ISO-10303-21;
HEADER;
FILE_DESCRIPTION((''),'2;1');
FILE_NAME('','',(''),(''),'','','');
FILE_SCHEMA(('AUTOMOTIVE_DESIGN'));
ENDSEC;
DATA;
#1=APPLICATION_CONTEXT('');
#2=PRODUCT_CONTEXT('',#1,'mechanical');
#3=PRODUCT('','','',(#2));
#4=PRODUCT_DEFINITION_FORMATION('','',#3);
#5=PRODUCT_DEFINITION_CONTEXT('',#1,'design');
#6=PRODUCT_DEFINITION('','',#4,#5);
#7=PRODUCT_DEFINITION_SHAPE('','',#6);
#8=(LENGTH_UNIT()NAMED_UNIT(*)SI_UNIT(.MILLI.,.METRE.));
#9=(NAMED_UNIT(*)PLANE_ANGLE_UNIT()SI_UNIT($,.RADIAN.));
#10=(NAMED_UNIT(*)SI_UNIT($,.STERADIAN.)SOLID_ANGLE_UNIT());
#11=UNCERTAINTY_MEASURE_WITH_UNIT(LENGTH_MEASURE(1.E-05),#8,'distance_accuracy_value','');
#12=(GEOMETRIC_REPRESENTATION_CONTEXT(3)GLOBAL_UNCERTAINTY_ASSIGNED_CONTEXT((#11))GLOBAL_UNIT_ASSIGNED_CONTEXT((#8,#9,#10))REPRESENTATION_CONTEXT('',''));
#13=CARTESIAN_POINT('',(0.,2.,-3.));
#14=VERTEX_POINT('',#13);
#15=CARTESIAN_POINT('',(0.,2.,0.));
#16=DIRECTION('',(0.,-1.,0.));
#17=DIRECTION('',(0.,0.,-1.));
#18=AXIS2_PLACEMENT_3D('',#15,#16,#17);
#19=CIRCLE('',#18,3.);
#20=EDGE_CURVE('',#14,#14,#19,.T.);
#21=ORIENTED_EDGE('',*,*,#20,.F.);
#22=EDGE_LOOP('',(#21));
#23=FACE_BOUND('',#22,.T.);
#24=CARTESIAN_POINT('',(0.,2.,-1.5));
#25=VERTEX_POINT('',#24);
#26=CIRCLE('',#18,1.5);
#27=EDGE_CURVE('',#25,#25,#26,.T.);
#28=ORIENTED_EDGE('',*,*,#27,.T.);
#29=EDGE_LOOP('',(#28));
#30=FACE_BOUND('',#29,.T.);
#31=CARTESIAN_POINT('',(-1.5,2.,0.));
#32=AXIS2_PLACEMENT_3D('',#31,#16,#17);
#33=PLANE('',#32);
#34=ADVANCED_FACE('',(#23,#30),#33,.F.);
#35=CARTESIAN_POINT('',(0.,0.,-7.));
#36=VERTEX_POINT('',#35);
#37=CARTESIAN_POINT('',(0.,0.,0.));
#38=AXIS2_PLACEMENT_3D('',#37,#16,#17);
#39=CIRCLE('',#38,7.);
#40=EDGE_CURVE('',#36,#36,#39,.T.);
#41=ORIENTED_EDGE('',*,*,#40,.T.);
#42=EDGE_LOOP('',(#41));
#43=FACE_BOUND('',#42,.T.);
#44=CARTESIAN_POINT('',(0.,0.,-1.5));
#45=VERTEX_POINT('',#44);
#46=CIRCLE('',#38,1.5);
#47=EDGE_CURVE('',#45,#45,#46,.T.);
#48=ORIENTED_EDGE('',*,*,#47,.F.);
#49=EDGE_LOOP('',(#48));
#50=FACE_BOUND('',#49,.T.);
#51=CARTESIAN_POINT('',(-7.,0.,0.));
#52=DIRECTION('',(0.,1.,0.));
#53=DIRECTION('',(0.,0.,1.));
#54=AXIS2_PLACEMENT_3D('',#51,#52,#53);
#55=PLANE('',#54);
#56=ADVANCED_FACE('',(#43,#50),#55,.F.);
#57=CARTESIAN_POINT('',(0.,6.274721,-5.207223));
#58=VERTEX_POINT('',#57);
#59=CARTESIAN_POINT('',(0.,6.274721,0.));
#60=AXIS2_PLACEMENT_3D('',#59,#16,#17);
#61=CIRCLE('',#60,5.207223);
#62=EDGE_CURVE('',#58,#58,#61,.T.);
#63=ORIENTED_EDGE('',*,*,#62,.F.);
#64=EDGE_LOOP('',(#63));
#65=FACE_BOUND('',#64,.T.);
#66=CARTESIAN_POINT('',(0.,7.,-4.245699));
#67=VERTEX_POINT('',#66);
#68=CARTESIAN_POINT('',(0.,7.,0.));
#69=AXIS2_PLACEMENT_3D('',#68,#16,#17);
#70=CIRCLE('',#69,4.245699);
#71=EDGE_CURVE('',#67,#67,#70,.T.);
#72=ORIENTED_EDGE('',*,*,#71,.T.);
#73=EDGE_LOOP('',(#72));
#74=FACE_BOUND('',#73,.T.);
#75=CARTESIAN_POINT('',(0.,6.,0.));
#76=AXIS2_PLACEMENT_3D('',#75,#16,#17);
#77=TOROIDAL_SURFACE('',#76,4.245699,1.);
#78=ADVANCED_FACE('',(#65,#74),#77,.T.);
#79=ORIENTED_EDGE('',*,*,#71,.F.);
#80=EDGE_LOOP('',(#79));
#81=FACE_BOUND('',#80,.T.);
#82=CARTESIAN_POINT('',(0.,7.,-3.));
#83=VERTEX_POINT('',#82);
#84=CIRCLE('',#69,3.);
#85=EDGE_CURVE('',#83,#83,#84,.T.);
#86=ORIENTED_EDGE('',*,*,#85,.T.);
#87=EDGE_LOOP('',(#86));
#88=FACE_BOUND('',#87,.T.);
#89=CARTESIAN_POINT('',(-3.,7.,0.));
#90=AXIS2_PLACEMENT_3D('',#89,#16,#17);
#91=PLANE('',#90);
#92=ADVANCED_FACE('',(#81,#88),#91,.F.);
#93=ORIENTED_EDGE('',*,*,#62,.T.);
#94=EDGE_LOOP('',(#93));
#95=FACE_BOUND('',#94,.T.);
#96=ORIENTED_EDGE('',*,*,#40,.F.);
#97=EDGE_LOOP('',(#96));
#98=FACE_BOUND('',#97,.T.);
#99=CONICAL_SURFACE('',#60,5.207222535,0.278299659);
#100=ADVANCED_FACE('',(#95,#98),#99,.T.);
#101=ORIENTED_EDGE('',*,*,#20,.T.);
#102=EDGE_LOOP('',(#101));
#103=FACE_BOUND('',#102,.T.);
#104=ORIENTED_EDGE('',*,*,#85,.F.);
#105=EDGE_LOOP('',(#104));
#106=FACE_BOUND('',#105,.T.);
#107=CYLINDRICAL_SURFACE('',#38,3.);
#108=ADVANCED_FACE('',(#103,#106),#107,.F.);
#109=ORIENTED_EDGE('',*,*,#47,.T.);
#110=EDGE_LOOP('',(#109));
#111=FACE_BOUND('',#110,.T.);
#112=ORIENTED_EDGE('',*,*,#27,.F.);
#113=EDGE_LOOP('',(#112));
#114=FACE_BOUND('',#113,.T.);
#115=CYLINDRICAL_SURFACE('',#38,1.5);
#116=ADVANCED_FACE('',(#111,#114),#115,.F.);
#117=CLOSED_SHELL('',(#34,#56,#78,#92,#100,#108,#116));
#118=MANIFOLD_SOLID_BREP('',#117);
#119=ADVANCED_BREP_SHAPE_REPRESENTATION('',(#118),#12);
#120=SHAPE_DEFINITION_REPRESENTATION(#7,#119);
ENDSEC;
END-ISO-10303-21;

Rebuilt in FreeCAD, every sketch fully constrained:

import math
import FreeCAD as App
import Part
import Sketcher
Q = App.Units.Quantity

doc = App.newDocument("Part")
body = doc.addObject("PartDesign::Body", "Body")

# Sketch on XY plane
sketch1 = body.newObject("Sketcher::SketchObject", "Sketch")
sketch1.AttachmentSupport = (doc.getObject("XY_Plane"), [""])
sketch1.MapMode = "FlatFace"
sketch1.addGeometry(Part.LineSegment(App.Vector(-7, 0, 0), App.Vector(-1.5, 0, 0)), False)
sketch1.addGeometry(Part.LineSegment(App.Vector(-1.5, 0, 0), App.Vector(-1.5, 2, 0)), False)
sketch1.addGeometry(Part.LineSegment(App.Vector(-1.5, 2, 0), App.Vector(-3, 2, 0)), False)
sketch1.addGeometry(Part.LineSegment(App.Vector(-3, 2, 0), App.Vector(-3, 7, 0)), False)
sketch1.addGeometry(Part.LineSegment(App.Vector(-3, 7, 0), App.Vector(-4.2, 7, 0)), False)
sketch1.addGeometry(Part.ArcOfCircle(Part.Circle(App.Vector(-4.2, 6, 0), App.Vector(0, 0, 1), 1), math.radians(90), math.radians(164)), False)
sketch1.addGeometry(Part.LineSegment(App.Vector(-5.2, 6.3, 0), App.Vector(-7, 0, 0)), False)
sketch1.addConstraint(Sketcher.Constraint("Coincident", 0, 2, 1, 1))
sketch1.addConstraint(Sketcher.Constraint("Coincident", 1, 2, 2, 1))
sketch1.addConstraint(Sketcher.Constraint("Coincident", 2, 2, 3, 1))
sketch1.addConstraint(Sketcher.Constraint("Coincident", 3, 2, 4, 1))
sketch1.addConstraint(Sketcher.Constraint("Tangent", 4, 2, 5, 1))
sketch1.addConstraint(Sketcher.Constraint("Tangent", 5, 2, 6, 1))
sketch1.addConstraint(Sketcher.Constraint("Coincident", 6, 2, 0, 1))
sketch1.addConstraint(Sketcher.Constraint("Horizontal", 0))
sketch1.addConstraint(Sketcher.Constraint("Vertical", 1))
sketch1.addConstraint(Sketcher.Constraint("Horizontal", 2))
sketch1.addConstraint(Sketcher.Constraint("Vertical", 3))
sketch1.addConstraint(Sketcher.Constraint("Horizontal", 4))
sketch1.addConstraint(Sketcher.Constraint("PointOnObject", 0, 2, -1))
sketch1.addConstraint(Sketcher.Constraint("Radius", 5, Q("1 mm")))
sketch1.addConstraint(Sketcher.Constraint("DistanceY", 1, 1, 1, 2, Q("2 mm")))
sketch1.addConstraint(Sketcher.Constraint("DistanceY", 3, 1, 3, 2, Q("5 mm")))
sketch1.addConstraint(Sketcher.Constraint("DistanceX", 0, 1, 0, 2, Q("5.5 mm")))
sketch1.addConstraint(Sketcher.Constraint("DistanceX", 2, 2, 2, 1, Q("1.5 mm")))
sketch1.addConstraint(Sketcher.Constraint("DistanceX", 2, 2, -1, 1, Q("3 mm")))
sketch1.addConstraint(Sketcher.Constraint("DistanceX", 4, 2, 4, 1, Q("1.245699 mm")))
revolution = body.newObject("PartDesign::Revolution", "Revolution")
revolution.Profile = sketch1
revolution.ReferenceAxis = (sketch1, ["V_Axis"])
revolution.Angle = 360

doc.recompute()
